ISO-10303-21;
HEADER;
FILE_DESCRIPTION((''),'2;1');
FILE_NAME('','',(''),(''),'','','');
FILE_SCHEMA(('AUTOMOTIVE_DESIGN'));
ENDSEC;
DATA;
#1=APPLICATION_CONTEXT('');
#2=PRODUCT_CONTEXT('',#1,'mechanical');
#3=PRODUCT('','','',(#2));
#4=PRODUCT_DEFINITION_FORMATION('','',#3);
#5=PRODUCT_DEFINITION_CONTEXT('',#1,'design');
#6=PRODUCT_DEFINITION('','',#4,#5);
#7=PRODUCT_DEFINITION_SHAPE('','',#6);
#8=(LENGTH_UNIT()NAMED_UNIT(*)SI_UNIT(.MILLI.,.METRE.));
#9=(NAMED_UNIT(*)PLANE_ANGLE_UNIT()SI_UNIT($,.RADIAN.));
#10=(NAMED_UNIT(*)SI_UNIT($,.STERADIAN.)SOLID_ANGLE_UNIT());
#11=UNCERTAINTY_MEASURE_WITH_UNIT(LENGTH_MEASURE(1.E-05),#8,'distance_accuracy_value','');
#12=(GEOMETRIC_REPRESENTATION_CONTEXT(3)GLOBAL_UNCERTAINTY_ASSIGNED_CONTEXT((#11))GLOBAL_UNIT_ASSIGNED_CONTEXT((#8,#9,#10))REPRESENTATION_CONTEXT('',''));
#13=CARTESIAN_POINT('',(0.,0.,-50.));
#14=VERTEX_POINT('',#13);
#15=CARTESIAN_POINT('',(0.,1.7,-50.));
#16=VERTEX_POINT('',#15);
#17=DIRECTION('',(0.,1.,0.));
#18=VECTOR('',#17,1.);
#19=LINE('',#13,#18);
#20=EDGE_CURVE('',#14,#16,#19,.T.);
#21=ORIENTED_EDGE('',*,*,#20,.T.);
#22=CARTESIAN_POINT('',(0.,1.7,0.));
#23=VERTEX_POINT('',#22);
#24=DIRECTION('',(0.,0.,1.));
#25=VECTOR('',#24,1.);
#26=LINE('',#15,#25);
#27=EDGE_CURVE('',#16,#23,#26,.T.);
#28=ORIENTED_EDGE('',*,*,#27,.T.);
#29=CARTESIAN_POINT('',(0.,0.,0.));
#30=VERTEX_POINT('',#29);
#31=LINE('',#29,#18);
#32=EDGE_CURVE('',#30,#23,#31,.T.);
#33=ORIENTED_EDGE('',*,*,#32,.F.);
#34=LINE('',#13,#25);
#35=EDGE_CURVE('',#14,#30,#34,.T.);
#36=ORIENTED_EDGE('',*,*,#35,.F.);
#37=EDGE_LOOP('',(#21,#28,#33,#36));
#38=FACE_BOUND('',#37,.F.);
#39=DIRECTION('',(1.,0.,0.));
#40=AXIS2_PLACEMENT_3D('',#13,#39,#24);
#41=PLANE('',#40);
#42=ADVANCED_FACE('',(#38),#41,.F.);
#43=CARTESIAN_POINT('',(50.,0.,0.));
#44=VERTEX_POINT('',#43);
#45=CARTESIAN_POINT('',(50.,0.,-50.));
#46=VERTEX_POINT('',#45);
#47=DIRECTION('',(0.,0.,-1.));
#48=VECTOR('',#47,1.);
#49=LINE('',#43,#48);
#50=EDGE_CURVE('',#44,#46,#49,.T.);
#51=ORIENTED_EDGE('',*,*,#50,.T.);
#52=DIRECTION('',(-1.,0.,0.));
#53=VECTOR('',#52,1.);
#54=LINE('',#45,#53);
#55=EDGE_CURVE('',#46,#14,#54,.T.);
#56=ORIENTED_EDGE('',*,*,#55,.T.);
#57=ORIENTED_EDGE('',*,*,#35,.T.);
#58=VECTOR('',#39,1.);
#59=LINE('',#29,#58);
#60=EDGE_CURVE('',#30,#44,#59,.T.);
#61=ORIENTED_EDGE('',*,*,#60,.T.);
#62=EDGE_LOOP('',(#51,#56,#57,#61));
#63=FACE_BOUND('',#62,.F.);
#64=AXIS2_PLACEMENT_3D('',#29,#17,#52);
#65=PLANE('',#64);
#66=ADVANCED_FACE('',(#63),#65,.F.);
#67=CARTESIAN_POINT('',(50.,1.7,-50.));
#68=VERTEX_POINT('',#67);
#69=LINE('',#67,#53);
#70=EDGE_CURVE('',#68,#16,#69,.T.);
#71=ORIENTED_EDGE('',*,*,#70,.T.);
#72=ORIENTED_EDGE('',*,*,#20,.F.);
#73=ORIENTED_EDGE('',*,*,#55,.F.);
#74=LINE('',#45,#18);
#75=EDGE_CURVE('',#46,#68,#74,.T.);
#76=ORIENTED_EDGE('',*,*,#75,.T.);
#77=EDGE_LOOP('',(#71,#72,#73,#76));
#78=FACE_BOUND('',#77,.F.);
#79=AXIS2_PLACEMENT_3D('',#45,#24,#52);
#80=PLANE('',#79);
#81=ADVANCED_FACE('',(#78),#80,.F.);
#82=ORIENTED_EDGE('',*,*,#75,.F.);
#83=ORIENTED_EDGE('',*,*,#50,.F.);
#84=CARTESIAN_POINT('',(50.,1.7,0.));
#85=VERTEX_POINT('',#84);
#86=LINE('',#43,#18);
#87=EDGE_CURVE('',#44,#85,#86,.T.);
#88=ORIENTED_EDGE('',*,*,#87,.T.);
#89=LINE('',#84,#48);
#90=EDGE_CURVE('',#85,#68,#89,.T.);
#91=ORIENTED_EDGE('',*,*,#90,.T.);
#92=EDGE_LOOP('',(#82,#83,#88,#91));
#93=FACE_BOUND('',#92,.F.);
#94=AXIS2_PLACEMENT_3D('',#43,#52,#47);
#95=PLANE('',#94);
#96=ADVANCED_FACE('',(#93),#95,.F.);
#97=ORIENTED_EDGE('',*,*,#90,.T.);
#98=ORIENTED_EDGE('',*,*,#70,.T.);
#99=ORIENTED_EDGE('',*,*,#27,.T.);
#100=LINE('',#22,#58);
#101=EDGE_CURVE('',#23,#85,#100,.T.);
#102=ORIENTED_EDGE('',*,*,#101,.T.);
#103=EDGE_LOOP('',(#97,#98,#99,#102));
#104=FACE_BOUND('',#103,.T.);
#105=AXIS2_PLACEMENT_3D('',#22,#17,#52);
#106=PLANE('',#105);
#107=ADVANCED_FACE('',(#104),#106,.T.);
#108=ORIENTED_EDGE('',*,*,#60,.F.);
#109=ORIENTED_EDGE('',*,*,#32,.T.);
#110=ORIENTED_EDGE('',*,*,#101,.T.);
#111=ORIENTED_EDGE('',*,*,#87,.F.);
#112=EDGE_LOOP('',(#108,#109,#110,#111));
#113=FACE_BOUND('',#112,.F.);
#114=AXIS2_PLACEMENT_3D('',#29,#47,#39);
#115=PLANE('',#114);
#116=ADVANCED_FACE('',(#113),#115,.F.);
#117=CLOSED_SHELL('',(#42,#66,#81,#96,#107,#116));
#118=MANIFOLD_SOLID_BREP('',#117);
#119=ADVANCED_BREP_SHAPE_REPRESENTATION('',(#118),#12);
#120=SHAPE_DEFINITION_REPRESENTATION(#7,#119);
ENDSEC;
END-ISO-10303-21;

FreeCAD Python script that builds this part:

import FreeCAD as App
import Part
import Sketcher

V = App.Vector
Q = App.Units.Quantity


def add_polygon(sketch, points):
    """Adds a closed chain of lines whose ends are joined by coincident constraints."""
    first, n = sketch.GeometryCount, len(points)
    for a, b in zip(points, points[1:] + points[:1]):
        sketch.addGeometry(Part.LineSegment(App.Vector(*a, 0), App.Vector(*b, 0)), False)
    for i in range(n):
        sketch.addConstraint(Sketcher.Constraint("Coincident", first + i, 2, first + (i + 1) % n, 1))

doc = App.newDocument("Part")
body = doc.addObject("PartDesign::Body", "Body")

# Sketch on XZ plane
sketch1 = body.newObject("Sketcher::SketchObject", "Sketch")
sketch1.AttachmentSupport = (doc.getObject("XZ_Plane"), [""])
sketch1.MapMode = "FlatFace"
add_polygon(sketch1, [(0, -50), (0, 0), (50, 0), (50, -50)])  # lines 0-3
sketch1.addConstraint(Sketcher.Constraint("Vertical", 0))
sketch1.addConstraint(Sketcher.Constraint("Horizontal", 1))
sketch1.addConstraint(Sketcher.Constraint("Vertical", 2))
sketch1.addConstraint(Sketcher.Constraint("Horizontal", 3))
sketch1.addConstraint(Sketcher.Constraint("Coincident", 0, 2, -1, 1))
sketch1.addConstraint(Sketcher.Constraint("Equal", 3, 0))
sketch1.addConstraint(Sketcher.Constraint("DistanceX", 1, 1, 1, 2, Q("50 mm")))
pad1 = body.newObject("PartDesign::Pad", "Pad")
pad1.Profile = sketch1
pad1.Length = 1.7
pad1.Reversed = True

doc.recompute()
